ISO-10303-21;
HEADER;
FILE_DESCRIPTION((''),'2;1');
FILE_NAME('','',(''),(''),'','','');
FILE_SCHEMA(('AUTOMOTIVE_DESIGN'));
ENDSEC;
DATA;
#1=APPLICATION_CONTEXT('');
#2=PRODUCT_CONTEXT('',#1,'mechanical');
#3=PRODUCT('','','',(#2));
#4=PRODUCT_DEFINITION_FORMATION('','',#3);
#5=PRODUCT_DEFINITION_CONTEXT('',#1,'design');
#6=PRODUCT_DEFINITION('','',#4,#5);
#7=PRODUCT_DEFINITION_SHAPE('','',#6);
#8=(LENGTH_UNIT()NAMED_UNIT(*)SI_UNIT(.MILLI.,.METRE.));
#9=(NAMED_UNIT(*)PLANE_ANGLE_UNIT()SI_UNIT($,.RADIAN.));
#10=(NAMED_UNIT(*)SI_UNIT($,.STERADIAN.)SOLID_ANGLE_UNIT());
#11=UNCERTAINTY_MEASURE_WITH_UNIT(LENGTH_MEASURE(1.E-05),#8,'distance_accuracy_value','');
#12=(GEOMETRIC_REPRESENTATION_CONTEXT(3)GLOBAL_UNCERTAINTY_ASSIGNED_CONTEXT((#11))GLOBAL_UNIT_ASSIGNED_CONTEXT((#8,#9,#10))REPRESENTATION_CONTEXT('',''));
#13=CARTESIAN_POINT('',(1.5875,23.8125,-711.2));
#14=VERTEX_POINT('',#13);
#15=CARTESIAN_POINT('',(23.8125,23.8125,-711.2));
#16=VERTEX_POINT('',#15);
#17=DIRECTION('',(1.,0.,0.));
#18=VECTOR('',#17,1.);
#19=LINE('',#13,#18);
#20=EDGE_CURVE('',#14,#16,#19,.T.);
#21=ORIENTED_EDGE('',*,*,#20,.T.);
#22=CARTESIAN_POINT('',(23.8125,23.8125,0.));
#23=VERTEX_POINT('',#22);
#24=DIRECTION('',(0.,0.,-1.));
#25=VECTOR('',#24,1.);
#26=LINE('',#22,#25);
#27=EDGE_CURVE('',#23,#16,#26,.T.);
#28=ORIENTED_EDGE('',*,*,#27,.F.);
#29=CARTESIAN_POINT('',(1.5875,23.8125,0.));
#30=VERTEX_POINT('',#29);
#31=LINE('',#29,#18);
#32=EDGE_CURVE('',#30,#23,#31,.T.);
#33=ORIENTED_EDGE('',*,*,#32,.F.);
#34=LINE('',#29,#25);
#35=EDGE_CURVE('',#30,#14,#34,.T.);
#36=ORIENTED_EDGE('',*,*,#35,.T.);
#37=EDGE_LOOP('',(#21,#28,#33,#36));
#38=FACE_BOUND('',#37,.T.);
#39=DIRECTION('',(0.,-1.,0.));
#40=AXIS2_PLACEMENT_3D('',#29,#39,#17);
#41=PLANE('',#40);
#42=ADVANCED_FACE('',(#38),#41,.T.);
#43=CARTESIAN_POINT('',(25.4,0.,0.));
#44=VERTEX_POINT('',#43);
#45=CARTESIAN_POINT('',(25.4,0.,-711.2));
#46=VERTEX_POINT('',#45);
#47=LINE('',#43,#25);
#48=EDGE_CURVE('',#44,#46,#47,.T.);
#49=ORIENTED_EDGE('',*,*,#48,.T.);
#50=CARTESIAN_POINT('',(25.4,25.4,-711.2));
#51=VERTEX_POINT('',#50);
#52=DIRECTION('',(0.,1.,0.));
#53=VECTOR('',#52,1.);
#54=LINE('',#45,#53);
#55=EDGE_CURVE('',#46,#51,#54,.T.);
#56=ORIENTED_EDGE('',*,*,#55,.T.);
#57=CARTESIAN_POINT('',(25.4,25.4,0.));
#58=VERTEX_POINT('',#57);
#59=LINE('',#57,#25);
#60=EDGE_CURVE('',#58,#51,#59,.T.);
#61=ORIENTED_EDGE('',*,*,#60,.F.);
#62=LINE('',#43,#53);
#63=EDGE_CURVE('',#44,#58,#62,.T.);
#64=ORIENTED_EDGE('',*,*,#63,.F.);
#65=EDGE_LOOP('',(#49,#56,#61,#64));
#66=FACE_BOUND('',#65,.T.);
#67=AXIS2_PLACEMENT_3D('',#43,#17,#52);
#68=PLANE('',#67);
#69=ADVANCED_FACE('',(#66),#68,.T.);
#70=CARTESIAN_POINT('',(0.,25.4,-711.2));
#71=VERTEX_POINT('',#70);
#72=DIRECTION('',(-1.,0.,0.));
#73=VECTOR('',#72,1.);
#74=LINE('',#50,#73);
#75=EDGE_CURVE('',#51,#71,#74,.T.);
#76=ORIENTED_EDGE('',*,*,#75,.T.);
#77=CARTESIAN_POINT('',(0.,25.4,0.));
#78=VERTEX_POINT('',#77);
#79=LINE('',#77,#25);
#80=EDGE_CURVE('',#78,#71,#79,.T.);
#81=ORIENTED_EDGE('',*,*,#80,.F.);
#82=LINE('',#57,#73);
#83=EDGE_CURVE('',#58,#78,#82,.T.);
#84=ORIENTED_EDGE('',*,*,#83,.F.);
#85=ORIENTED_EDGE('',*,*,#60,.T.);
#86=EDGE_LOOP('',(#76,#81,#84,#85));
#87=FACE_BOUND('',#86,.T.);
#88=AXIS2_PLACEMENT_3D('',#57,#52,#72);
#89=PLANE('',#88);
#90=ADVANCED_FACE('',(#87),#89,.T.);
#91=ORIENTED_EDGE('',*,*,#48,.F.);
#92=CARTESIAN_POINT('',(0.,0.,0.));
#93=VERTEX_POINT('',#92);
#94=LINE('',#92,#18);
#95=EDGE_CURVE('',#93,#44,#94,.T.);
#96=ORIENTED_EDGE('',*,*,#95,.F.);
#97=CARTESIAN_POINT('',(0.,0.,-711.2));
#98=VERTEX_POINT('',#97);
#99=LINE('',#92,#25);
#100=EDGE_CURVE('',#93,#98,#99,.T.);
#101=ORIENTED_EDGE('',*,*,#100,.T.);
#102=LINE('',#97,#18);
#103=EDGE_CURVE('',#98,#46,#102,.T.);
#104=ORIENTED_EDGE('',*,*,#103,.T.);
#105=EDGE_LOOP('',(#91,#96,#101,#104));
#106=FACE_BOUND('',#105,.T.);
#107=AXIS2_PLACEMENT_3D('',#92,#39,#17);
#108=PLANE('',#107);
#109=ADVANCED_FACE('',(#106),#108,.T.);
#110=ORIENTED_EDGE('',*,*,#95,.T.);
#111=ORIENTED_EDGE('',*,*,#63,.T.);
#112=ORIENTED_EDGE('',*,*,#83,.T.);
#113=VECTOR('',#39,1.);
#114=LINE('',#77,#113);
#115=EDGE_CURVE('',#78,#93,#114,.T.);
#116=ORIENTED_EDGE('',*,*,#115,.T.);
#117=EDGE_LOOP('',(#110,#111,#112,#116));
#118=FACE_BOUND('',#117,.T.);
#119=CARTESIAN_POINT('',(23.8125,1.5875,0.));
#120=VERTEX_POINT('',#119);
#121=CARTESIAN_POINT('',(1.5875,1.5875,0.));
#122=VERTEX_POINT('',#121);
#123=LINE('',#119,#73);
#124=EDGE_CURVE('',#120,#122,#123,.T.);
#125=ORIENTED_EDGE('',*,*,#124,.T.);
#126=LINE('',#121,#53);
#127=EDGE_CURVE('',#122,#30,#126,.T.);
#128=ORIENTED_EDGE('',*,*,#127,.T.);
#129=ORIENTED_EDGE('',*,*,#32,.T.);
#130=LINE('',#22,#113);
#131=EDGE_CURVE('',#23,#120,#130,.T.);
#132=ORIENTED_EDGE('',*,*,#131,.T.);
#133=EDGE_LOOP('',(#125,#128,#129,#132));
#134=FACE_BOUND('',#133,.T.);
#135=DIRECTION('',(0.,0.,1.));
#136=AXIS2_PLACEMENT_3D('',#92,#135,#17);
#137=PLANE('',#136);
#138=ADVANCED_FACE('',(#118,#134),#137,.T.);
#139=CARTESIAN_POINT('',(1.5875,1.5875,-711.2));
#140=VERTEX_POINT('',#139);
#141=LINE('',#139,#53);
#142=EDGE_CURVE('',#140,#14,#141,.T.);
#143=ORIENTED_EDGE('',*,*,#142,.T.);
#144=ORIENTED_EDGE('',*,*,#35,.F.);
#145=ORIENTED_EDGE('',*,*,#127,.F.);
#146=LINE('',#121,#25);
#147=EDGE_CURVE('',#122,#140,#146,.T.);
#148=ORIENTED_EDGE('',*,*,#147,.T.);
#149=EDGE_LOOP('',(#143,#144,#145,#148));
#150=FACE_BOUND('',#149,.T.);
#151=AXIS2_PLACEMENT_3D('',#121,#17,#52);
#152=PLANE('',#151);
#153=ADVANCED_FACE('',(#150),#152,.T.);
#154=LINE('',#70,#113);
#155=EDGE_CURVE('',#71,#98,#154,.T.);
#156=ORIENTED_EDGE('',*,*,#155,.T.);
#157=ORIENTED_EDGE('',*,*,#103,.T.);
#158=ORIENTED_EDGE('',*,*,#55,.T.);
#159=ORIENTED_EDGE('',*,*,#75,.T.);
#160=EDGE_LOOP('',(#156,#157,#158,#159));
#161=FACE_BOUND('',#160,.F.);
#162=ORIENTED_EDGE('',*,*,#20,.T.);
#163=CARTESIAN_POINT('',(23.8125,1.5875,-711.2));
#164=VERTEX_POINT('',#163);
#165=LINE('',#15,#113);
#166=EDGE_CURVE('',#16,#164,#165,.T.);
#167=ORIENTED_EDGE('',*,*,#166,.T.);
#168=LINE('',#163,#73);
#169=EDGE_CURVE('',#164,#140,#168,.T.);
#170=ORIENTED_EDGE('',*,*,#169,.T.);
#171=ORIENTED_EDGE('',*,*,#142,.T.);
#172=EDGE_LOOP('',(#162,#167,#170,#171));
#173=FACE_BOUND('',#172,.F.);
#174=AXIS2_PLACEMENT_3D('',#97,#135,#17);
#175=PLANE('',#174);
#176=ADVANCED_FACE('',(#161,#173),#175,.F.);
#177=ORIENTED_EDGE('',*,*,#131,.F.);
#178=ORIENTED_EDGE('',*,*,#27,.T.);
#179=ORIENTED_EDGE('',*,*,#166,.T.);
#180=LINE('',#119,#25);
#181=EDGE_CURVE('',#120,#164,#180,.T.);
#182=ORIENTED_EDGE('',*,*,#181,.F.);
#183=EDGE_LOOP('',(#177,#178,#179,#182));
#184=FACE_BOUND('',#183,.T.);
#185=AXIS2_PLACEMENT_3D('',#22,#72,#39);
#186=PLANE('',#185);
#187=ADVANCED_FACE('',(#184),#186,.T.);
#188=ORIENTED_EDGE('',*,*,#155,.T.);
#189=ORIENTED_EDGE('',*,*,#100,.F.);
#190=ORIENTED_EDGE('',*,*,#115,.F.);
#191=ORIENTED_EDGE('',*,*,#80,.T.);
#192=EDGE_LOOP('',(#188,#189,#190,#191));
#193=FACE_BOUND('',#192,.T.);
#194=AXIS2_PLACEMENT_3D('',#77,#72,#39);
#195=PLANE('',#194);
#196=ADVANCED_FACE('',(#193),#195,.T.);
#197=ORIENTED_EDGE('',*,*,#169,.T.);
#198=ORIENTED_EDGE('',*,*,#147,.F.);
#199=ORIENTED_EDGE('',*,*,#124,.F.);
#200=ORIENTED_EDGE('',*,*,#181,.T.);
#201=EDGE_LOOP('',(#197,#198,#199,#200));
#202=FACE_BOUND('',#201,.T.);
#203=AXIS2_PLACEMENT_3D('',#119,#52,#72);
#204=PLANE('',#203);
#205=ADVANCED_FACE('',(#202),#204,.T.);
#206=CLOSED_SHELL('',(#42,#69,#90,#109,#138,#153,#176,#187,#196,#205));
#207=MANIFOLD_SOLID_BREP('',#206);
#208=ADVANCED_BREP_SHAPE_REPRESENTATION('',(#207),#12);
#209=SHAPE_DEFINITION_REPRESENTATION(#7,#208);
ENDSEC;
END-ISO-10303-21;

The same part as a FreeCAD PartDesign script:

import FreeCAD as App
import Part
import Sketcher

V = App.Vector
Q = App.Units.Quantity


def add_polygon(sketch, points):
    """Adds a closed chain of lines whose ends are joined by coincident constraints."""
    first, n = sketch.GeometryCount, len(points)
    for a, b in zip(points, points[1:] + points[:1]):
        sketch.addGeometry(Part.LineSegment(App.Vector(*a, 0), App.Vector(*b, 0)), False)
    for i in range(n):
        sketch.addConstraint(Sketcher.Constraint("Coincident", first + i, 2, first + (i + 1) % n, 1))

doc = App.newDocument("Part")
body = doc.addObject("PartDesign::Body", "Body")

sketch1 = doc.addObject("Sketcher::SketchObject", "Sketch")
body.addObject(sketch1)
sketch1.AttachmentSupport = (doc.XY_Plane, [""])
sketch1.MapMode = "FlatFace"
add_polygon(sketch1, [(0, 25.4), (0, 0), (25.4, 0), (25.4, 25.4)])
add_polygon(sketch1, [(1.5875, 1.5875), (1.5875, 23.8125), (23.8125, 23.8125), (23.8125, 1.5875)])
sketch1.addConstraint([
    Sketcher.Constraint("Vertical", 0),
    Sketcher.Constraint("Horizontal", 1),
    Sketcher.Constraint("Vertical", 2),
    Sketcher.Constraint("Horizontal", 3),
    Sketcher.Constraint("Vertical", 4),
    Sketcher.Constraint("Horizontal", 5),
    Sketcher.Constraint("Vertical", 6),
    Sketcher.Constraint("Horizontal", 7),
    Sketcher.Constraint("Coincident", 0, 2, -1, 1),
    Sketcher.Constraint("Equal", 3, 0),
    Sketcher.Constraint("Equal", 7, 4),
    Sketcher.Constraint("DistanceX", 1, 1, 1, 2, Q("1 in")),
    Sketcher.Constraint("DistanceX", -1, 1, 4, 2, Q("0.0625 in")),
    Sketcher.Constraint("DistanceY", -1, 1, 6, 2, Q("0.0625 in")),
    Sketcher.Constraint("DistanceY", 4, 2, 3, 2, Q("0.0625 in")),
])
pad1 = doc.addObject("PartDesign::Pad", "Pad")
body.addObject(pad1)
pad1.Profile = sketch1
pad1.Length = Q("28 in")
pad1.Reversed = True

doc.recompute()
